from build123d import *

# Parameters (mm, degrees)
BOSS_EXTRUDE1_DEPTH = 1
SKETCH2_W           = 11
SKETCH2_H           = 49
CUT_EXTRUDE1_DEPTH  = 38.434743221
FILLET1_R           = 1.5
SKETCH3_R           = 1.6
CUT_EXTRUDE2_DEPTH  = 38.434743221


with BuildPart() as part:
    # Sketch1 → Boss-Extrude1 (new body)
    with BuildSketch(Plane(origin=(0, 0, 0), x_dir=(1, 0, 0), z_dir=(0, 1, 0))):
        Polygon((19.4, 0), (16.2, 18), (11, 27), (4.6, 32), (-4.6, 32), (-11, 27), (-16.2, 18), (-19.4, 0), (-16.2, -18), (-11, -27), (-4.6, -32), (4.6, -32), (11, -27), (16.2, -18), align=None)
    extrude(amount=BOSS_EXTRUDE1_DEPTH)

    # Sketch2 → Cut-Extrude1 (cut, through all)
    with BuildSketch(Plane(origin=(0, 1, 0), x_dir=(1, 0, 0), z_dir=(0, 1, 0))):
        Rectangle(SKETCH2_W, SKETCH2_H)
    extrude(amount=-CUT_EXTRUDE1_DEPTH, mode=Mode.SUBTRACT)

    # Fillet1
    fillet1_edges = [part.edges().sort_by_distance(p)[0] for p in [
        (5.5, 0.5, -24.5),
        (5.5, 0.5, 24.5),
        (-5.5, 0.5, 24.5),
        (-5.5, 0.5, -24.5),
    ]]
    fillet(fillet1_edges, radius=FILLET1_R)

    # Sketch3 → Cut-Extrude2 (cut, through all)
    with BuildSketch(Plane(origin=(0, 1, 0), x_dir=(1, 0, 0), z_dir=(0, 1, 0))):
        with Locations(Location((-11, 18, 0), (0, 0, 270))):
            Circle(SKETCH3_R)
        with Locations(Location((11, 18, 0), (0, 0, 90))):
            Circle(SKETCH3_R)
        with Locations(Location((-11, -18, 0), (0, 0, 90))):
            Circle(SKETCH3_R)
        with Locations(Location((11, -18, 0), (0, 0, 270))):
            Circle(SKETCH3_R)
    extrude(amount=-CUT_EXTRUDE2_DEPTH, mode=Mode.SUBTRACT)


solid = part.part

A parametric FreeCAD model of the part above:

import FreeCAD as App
import Part
import Sketcher


def edges_at(feature, points):
    """Names of the edges that pass closest to the given points."""
    edges = feature.Shape.Edges
    near = lambda p: min(range(len(edges)), key=lambda i: edges[i].distToShape(Part.Vertex(*p))[0])
    return sorted({f"Edge{near(p) + 1}" for p in points})


def add_polygon(sketch, points):
    """Adds a closed chain of lines whose ends are joined by coincident constraints."""
    first, n = sketch.GeometryCount, len(points)
    for a, b in zip(points, points[1:] + points[:1]):
        sketch.addGeometry(Part.LineSegment(App.Vector(*a, 0), App.Vector(*b, 0)), False)
    for i in range(n):
        sketch.addConstraint(Sketcher.Constraint("Coincident", first + i, 2, first + (i + 1) % n, 1))

doc = App.newDocument("Part")
body = doc.addObject("PartDesign::Body", "Body")

sketch1 = doc.addObject("Sketcher::SketchObject", "Sketch")
body.addObject(sketch1)
sketch1.AttachmentSupport = (doc.XZ_Plane, [""])
sketch1.MapMode = "FlatFace"
add_polygon(sketch1, [(19, 0), (16, -18), (11, -27), (5, -32), (-5, -32), (-11, -27), (-16, -18), (-19, 0), (-16, 18), (-11, 27), (-5, 32), (5, 32), (11, 27), (16, 18)])
sketch1.addConstraint([
    Sketcher.Constraint("Horizontal", 3),
    Sketcher.Constraint("Horizontal", 10),
    Sketcher.Constraint("Symmetric", 0, 2, 7, 2, -1, 1),
    Sketcher.Constraint("Symmetric", 1, 2, 8, 2, -1, 1),
    Sketcher.Constraint("Symmetric", 2, 2, 9, 2, -1, 1),
    Sketcher.Constraint("Symmetric", 4, 2, 11, 2, -1, 1),
    Sketcher.Constraint("Symmetric", 5, 2, 12, 2, -1, 1),
    Sketcher.Constraint("Symmetric", 6, 2, 13, 2, -1, 1),
    Sketcher.Constraint("Symmetric", 1, 2, 4, 2, -2),
    Sketcher.Constraint("Symmetric", 0, 2, 5, 2, -2),
    Sketcher.Constraint("PointOnObject", 6, 2, -1),
    Sketcher.Constraint("Parallel", 4, 11),
    Sketcher.Constraint("Vertical", 3, 2, 9, 2),
    Sketcher.Constraint("DistanceX", 3, 2, 3, 1, 9.2),
    Sketcher.Constraint("DistanceY", 0, 2, -1, 1, 18.0),
    Sketcher.Constraint("DistanceX", -1, 1, 1, 2, 11.0),
    Sketcher.Constraint("DistanceY", 1, 2, -1, 1, 27.0),
    Sketcher.Constraint("DistanceY", 2, 2, -1, 1, 32.0),
    Sketcher.Constraint("DistanceX", 6, 2, 2, 2, 24.0),
    Sketcher.Constraint("DistanceX", -1, 1, 0, 2, 16.2),
])
pad1 = doc.addObject("PartDesign::Pad", "Pad")
body.addObject(pad1)
pad1.Profile = sketch1
pad1.Length = 1
pad1.Reversed = True

sketch2 = doc.addObject("Sketcher::SketchObject", "Sketch001")
body.addObject(sketch2)
sketch2.AttachmentSupport = (doc.XZ_Plane, [""])
sketch2.MapMode = "FlatFace"
sketch2.AttachmentOffset = App.Placement(App.Vector(0, 0, -1), App.Rotation())
add_polygon(sketch2, [(-6, -24), (-6, 24), (6, 24), (6, -24)])
sketch2.addConstraint([
    Sketcher.Constraint("Vertical", 0),
    Sketcher.Constraint("Horizontal", 1),
    Sketcher.Constraint("Vertical", 2),
    Sketcher.Constraint("Horizontal", 3),
    Sketcher.Constraint("Symmetric", 0, 2, 2, 2, -1, 1),
    Sketcher.Constraint("DistanceX", 1, 1, 1, 2, 11.0),
    Sketcher.Constraint("DistanceY", 0, 1, 0, 2, 49.0),
])
pocket1 = doc.addObject("PartDesign::Pocket", "Pocket")
body.addObject(pocket1)
pocket1.Profile = sketch2
pocket1.Type = "ThroughAll"
pocket1.Reversed = True
doc.recompute()

fillet = doc.addObject("PartDesign::Fillet", "Fillet")
body.addObject(fillet)
fillet.Base = (pocket1, edges_at(pocket1, [
    (5.5, 0.5, -24.5),
    (5.5, 0.5, 24.5),
    (-5.5, 0.5, 24.5),
    (-5.5, 0.5, -24.5),
]))
fillet.Radius = 1.5

sketch3 = doc.addObject("Sketcher::SketchObject", "Sketch002")
body.addObject(sketch3)
sketch3.AttachmentSupport = (doc.XZ_Plane, [""])
sketch3.MapMode = "FlatFace"
sketch3.AttachmentOffset = App.Placement(App.Vector(0, 0, -1), App.Rotation())
sketch3.addGeometry([
    Part.Circle(App.Vector(-11, -18, 0), App.Vector(0, 0, 1), 1.6),
    Part.Circle(App.Vector(11, -18, 0), App.Vector(0, 0, 1), 1.6),
    Part.Circle(App.Vector(-11, 18, 0), App.Vector(0, 0, 1), 1.6),
    Part.Circle(App.Vector(11, 18, 0), App.Vector(0, 0, 1), 1.6),
], False)
sketch3.addConstraint([
    Sketcher.Constraint("Equal", 0, 1),
    Sketcher.Constraint("Equal", 1, 2),
    Sketcher.Constraint("Equal", 2, 3),
    Sketcher.Constraint("Symmetric", 1, 3, 2, 3, -1, 1),
    Sketcher.Constraint("Symmetric", 0, 3, 3, 3, -1, 1),
    Sketcher.Constraint("Symmetric", 0, 3, 1, 3, -2),
    Sketcher.Constraint("Diameter", 0, 3.2),
    Sketcher.Constraint("DistanceX", 0, 3, -1, 1, 11.0),
    Sketcher.Constraint("DistanceY", 0, 3, -1, 1, 18.0),
])
pocket2 = doc.addObject("PartDesign::Pocket", "Pocket001")
body.addObject(pocket2)
pocket2.Profile = sketch3
pocket2.Type = "ThroughAll"
pocket2.Reversed = True

doc.recompute()
